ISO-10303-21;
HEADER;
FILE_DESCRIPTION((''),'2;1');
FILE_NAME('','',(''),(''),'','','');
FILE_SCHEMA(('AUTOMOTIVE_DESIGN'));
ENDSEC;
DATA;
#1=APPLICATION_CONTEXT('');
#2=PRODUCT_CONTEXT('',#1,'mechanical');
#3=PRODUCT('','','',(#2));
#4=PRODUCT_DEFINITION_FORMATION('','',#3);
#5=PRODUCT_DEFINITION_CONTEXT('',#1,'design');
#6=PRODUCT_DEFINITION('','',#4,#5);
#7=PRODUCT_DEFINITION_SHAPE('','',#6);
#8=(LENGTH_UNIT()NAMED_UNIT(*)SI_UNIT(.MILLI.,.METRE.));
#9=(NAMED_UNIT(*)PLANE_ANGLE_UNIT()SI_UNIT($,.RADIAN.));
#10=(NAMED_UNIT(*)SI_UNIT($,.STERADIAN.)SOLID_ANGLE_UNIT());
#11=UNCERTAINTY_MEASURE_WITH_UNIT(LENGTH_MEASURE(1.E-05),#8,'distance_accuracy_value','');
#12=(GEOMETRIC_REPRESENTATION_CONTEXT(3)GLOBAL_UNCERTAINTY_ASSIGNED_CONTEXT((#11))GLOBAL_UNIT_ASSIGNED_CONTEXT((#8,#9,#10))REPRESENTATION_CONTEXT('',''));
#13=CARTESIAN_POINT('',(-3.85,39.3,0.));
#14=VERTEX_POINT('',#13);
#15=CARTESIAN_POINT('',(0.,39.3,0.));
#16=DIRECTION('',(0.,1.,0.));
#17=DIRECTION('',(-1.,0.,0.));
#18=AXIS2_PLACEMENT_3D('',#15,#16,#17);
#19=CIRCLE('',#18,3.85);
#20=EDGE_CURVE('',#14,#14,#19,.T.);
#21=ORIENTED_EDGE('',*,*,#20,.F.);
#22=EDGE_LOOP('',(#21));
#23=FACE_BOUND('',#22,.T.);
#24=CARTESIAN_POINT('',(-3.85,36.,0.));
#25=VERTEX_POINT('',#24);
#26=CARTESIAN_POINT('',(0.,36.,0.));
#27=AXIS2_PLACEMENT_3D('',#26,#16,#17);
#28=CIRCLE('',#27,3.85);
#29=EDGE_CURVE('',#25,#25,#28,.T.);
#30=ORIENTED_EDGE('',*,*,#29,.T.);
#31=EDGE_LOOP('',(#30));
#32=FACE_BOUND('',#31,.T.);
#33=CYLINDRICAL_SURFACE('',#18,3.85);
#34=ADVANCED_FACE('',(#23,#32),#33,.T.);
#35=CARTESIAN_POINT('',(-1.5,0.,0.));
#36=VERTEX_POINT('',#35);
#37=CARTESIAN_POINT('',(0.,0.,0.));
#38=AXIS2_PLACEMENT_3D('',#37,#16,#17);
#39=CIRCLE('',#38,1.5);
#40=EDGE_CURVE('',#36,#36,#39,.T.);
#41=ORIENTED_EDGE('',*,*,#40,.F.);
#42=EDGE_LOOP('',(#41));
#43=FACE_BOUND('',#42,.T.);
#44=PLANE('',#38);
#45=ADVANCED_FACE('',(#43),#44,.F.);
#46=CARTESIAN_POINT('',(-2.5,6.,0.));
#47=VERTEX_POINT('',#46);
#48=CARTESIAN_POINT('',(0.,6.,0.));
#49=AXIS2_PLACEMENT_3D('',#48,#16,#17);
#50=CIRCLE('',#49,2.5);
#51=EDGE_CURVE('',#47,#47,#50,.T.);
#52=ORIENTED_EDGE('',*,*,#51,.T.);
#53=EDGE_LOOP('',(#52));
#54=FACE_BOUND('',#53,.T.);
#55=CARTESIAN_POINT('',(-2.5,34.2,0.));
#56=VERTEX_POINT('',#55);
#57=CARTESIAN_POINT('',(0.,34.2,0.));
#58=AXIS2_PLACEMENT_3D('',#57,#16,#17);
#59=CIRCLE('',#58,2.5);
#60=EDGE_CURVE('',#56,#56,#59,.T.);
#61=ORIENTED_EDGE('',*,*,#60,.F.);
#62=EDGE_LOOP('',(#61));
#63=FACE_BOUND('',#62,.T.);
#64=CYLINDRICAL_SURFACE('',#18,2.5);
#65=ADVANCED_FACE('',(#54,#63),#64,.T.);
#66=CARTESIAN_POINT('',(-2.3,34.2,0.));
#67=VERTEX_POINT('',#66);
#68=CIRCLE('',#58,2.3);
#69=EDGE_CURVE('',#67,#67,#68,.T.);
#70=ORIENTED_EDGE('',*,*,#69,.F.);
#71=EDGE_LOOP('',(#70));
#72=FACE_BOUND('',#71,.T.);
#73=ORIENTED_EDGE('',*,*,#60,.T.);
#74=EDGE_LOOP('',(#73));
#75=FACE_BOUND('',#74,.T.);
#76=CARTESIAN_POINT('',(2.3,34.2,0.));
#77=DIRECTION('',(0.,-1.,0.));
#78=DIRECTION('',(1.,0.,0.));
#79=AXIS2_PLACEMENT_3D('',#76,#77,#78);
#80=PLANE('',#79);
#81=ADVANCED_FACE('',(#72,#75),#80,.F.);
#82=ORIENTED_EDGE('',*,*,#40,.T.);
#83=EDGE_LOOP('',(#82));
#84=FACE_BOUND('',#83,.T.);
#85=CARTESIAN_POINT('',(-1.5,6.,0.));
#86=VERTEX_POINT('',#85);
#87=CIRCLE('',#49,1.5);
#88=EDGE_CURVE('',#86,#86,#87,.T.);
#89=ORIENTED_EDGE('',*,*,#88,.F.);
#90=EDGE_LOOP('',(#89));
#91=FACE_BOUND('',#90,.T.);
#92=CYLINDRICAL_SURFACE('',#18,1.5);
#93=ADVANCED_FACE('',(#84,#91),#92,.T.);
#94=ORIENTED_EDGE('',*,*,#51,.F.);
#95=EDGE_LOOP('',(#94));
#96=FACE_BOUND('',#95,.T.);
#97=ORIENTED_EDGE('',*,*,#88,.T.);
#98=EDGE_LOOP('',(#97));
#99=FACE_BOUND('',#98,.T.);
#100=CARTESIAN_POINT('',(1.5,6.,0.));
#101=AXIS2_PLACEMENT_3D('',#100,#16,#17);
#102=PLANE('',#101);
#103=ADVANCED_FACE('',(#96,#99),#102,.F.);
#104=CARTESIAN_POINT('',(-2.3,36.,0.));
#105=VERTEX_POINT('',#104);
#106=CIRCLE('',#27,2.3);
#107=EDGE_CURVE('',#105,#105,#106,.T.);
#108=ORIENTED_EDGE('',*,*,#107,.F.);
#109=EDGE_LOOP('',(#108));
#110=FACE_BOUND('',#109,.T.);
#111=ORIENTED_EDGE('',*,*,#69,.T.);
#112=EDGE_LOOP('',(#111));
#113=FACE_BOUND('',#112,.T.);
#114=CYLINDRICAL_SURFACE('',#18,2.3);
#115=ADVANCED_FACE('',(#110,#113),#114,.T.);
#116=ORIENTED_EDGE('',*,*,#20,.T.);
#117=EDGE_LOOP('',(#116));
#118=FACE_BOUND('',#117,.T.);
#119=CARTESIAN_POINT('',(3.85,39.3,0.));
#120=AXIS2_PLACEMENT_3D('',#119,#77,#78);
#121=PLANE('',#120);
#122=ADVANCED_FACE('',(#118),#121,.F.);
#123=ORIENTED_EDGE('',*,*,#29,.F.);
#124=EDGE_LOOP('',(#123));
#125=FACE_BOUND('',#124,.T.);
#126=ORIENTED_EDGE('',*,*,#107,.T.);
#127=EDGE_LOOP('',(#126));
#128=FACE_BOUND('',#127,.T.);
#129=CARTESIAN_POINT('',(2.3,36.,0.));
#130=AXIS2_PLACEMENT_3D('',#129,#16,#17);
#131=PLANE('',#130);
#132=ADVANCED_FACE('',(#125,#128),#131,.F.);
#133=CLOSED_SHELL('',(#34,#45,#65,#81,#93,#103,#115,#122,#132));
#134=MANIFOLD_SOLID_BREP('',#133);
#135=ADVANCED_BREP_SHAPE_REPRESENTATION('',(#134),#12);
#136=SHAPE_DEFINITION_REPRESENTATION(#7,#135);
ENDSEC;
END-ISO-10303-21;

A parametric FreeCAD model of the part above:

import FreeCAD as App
import Part
import Sketcher
from FreeCAD import Vector
Q = App.Units.Quantity


def add_polygon(sketch, points):
    """Adds a closed chain of lines whose ends are joined by coincident constraints."""
    first, n = sketch.GeometryCount, len(points)
    for a, b in zip(points, points[1:] + points[:1]):
        sketch.addGeometry(Part.LineSegment(App.Vector(*a, 0), App.Vector(*b, 0)), False)
    for i in range(n):
        sketch.addConstraint(Sketcher.Constraint("Coincident", first + i, 2, first + (i + 1) % n, 1))

doc = App.newDocument("Part")
body = doc.addObject("PartDesign::Body", "Body")

# Sketch on XY plane
sketch1 = body.newObject("Sketcher::SketchObject", "Sketch")
sketch1.AttachmentSupport = (doc.getObject("XY_Plane"), [""])
sketch1.MapMode = "FlatFace"
add_polygon(sketch1, [(0, 0), (1.5, 0), (1.5, 6), (2.5, 6), (2.5, 34.2), (2.3, 34.2), (2.3, 36), (3.85, 36), (3.85, 39.3), (0, 39.3)])  # lines 0-9
sketch1.addConstraint([
    Sketcher.Constraint("Horizontal", 0),
    Sketcher.Constraint("Vertical", 1),
    Sketcher.Constraint("Horizontal", 2),
    Sketcher.Constraint("Vertical", 3),
    Sketcher.Constraint("Horizontal", 4),
    Sketcher.Constraint("Vertical", 5),
    Sketcher.Constraint("Horizontal", 6),
    Sketcher.Constraint("Vertical", 7),
    Sketcher.Constraint("Horizontal", 8),
    Sketcher.Constraint("Vertical", 9),
    Sketcher.Constraint("Coincident", 9, 2, -1, 1),
    Sketcher.Constraint("DistanceX", 2, 1, 2, 2, Q("1 mm")),
    Sketcher.Constraint("DistanceY", 1, 1, 1, 2, Q("6 mm")),
    Sketcher.Constraint("DistanceX", 0, 1, 0, 2, Q("1.5 mm")),
    Sketcher.Constraint("DistanceX", 4, 2, 4, 1, Q("0.2 mm")),
    Sketcher.Constraint("DistanceY", 3, 1, 3, 2, Q("28.2 mm")),
    Sketcher.Constraint("DistanceY", 5, 1, 5, 2, Q("1.8 mm")),
    Sketcher.Constraint("DistanceY", 7, 1, 7, 2, Q("3.3 mm")),
    Sketcher.Constraint("DistanceX", 6, 1, 6, 2, Q("1.55 mm")),
])
revolution = body.newObject("PartDesign::Revolution", "Revolution")
revolution.Profile = sketch1
revolution.ReferenceAxis = (sketch1, ["V_Axis"])
revolution.Angle = 360

doc.recompute()
